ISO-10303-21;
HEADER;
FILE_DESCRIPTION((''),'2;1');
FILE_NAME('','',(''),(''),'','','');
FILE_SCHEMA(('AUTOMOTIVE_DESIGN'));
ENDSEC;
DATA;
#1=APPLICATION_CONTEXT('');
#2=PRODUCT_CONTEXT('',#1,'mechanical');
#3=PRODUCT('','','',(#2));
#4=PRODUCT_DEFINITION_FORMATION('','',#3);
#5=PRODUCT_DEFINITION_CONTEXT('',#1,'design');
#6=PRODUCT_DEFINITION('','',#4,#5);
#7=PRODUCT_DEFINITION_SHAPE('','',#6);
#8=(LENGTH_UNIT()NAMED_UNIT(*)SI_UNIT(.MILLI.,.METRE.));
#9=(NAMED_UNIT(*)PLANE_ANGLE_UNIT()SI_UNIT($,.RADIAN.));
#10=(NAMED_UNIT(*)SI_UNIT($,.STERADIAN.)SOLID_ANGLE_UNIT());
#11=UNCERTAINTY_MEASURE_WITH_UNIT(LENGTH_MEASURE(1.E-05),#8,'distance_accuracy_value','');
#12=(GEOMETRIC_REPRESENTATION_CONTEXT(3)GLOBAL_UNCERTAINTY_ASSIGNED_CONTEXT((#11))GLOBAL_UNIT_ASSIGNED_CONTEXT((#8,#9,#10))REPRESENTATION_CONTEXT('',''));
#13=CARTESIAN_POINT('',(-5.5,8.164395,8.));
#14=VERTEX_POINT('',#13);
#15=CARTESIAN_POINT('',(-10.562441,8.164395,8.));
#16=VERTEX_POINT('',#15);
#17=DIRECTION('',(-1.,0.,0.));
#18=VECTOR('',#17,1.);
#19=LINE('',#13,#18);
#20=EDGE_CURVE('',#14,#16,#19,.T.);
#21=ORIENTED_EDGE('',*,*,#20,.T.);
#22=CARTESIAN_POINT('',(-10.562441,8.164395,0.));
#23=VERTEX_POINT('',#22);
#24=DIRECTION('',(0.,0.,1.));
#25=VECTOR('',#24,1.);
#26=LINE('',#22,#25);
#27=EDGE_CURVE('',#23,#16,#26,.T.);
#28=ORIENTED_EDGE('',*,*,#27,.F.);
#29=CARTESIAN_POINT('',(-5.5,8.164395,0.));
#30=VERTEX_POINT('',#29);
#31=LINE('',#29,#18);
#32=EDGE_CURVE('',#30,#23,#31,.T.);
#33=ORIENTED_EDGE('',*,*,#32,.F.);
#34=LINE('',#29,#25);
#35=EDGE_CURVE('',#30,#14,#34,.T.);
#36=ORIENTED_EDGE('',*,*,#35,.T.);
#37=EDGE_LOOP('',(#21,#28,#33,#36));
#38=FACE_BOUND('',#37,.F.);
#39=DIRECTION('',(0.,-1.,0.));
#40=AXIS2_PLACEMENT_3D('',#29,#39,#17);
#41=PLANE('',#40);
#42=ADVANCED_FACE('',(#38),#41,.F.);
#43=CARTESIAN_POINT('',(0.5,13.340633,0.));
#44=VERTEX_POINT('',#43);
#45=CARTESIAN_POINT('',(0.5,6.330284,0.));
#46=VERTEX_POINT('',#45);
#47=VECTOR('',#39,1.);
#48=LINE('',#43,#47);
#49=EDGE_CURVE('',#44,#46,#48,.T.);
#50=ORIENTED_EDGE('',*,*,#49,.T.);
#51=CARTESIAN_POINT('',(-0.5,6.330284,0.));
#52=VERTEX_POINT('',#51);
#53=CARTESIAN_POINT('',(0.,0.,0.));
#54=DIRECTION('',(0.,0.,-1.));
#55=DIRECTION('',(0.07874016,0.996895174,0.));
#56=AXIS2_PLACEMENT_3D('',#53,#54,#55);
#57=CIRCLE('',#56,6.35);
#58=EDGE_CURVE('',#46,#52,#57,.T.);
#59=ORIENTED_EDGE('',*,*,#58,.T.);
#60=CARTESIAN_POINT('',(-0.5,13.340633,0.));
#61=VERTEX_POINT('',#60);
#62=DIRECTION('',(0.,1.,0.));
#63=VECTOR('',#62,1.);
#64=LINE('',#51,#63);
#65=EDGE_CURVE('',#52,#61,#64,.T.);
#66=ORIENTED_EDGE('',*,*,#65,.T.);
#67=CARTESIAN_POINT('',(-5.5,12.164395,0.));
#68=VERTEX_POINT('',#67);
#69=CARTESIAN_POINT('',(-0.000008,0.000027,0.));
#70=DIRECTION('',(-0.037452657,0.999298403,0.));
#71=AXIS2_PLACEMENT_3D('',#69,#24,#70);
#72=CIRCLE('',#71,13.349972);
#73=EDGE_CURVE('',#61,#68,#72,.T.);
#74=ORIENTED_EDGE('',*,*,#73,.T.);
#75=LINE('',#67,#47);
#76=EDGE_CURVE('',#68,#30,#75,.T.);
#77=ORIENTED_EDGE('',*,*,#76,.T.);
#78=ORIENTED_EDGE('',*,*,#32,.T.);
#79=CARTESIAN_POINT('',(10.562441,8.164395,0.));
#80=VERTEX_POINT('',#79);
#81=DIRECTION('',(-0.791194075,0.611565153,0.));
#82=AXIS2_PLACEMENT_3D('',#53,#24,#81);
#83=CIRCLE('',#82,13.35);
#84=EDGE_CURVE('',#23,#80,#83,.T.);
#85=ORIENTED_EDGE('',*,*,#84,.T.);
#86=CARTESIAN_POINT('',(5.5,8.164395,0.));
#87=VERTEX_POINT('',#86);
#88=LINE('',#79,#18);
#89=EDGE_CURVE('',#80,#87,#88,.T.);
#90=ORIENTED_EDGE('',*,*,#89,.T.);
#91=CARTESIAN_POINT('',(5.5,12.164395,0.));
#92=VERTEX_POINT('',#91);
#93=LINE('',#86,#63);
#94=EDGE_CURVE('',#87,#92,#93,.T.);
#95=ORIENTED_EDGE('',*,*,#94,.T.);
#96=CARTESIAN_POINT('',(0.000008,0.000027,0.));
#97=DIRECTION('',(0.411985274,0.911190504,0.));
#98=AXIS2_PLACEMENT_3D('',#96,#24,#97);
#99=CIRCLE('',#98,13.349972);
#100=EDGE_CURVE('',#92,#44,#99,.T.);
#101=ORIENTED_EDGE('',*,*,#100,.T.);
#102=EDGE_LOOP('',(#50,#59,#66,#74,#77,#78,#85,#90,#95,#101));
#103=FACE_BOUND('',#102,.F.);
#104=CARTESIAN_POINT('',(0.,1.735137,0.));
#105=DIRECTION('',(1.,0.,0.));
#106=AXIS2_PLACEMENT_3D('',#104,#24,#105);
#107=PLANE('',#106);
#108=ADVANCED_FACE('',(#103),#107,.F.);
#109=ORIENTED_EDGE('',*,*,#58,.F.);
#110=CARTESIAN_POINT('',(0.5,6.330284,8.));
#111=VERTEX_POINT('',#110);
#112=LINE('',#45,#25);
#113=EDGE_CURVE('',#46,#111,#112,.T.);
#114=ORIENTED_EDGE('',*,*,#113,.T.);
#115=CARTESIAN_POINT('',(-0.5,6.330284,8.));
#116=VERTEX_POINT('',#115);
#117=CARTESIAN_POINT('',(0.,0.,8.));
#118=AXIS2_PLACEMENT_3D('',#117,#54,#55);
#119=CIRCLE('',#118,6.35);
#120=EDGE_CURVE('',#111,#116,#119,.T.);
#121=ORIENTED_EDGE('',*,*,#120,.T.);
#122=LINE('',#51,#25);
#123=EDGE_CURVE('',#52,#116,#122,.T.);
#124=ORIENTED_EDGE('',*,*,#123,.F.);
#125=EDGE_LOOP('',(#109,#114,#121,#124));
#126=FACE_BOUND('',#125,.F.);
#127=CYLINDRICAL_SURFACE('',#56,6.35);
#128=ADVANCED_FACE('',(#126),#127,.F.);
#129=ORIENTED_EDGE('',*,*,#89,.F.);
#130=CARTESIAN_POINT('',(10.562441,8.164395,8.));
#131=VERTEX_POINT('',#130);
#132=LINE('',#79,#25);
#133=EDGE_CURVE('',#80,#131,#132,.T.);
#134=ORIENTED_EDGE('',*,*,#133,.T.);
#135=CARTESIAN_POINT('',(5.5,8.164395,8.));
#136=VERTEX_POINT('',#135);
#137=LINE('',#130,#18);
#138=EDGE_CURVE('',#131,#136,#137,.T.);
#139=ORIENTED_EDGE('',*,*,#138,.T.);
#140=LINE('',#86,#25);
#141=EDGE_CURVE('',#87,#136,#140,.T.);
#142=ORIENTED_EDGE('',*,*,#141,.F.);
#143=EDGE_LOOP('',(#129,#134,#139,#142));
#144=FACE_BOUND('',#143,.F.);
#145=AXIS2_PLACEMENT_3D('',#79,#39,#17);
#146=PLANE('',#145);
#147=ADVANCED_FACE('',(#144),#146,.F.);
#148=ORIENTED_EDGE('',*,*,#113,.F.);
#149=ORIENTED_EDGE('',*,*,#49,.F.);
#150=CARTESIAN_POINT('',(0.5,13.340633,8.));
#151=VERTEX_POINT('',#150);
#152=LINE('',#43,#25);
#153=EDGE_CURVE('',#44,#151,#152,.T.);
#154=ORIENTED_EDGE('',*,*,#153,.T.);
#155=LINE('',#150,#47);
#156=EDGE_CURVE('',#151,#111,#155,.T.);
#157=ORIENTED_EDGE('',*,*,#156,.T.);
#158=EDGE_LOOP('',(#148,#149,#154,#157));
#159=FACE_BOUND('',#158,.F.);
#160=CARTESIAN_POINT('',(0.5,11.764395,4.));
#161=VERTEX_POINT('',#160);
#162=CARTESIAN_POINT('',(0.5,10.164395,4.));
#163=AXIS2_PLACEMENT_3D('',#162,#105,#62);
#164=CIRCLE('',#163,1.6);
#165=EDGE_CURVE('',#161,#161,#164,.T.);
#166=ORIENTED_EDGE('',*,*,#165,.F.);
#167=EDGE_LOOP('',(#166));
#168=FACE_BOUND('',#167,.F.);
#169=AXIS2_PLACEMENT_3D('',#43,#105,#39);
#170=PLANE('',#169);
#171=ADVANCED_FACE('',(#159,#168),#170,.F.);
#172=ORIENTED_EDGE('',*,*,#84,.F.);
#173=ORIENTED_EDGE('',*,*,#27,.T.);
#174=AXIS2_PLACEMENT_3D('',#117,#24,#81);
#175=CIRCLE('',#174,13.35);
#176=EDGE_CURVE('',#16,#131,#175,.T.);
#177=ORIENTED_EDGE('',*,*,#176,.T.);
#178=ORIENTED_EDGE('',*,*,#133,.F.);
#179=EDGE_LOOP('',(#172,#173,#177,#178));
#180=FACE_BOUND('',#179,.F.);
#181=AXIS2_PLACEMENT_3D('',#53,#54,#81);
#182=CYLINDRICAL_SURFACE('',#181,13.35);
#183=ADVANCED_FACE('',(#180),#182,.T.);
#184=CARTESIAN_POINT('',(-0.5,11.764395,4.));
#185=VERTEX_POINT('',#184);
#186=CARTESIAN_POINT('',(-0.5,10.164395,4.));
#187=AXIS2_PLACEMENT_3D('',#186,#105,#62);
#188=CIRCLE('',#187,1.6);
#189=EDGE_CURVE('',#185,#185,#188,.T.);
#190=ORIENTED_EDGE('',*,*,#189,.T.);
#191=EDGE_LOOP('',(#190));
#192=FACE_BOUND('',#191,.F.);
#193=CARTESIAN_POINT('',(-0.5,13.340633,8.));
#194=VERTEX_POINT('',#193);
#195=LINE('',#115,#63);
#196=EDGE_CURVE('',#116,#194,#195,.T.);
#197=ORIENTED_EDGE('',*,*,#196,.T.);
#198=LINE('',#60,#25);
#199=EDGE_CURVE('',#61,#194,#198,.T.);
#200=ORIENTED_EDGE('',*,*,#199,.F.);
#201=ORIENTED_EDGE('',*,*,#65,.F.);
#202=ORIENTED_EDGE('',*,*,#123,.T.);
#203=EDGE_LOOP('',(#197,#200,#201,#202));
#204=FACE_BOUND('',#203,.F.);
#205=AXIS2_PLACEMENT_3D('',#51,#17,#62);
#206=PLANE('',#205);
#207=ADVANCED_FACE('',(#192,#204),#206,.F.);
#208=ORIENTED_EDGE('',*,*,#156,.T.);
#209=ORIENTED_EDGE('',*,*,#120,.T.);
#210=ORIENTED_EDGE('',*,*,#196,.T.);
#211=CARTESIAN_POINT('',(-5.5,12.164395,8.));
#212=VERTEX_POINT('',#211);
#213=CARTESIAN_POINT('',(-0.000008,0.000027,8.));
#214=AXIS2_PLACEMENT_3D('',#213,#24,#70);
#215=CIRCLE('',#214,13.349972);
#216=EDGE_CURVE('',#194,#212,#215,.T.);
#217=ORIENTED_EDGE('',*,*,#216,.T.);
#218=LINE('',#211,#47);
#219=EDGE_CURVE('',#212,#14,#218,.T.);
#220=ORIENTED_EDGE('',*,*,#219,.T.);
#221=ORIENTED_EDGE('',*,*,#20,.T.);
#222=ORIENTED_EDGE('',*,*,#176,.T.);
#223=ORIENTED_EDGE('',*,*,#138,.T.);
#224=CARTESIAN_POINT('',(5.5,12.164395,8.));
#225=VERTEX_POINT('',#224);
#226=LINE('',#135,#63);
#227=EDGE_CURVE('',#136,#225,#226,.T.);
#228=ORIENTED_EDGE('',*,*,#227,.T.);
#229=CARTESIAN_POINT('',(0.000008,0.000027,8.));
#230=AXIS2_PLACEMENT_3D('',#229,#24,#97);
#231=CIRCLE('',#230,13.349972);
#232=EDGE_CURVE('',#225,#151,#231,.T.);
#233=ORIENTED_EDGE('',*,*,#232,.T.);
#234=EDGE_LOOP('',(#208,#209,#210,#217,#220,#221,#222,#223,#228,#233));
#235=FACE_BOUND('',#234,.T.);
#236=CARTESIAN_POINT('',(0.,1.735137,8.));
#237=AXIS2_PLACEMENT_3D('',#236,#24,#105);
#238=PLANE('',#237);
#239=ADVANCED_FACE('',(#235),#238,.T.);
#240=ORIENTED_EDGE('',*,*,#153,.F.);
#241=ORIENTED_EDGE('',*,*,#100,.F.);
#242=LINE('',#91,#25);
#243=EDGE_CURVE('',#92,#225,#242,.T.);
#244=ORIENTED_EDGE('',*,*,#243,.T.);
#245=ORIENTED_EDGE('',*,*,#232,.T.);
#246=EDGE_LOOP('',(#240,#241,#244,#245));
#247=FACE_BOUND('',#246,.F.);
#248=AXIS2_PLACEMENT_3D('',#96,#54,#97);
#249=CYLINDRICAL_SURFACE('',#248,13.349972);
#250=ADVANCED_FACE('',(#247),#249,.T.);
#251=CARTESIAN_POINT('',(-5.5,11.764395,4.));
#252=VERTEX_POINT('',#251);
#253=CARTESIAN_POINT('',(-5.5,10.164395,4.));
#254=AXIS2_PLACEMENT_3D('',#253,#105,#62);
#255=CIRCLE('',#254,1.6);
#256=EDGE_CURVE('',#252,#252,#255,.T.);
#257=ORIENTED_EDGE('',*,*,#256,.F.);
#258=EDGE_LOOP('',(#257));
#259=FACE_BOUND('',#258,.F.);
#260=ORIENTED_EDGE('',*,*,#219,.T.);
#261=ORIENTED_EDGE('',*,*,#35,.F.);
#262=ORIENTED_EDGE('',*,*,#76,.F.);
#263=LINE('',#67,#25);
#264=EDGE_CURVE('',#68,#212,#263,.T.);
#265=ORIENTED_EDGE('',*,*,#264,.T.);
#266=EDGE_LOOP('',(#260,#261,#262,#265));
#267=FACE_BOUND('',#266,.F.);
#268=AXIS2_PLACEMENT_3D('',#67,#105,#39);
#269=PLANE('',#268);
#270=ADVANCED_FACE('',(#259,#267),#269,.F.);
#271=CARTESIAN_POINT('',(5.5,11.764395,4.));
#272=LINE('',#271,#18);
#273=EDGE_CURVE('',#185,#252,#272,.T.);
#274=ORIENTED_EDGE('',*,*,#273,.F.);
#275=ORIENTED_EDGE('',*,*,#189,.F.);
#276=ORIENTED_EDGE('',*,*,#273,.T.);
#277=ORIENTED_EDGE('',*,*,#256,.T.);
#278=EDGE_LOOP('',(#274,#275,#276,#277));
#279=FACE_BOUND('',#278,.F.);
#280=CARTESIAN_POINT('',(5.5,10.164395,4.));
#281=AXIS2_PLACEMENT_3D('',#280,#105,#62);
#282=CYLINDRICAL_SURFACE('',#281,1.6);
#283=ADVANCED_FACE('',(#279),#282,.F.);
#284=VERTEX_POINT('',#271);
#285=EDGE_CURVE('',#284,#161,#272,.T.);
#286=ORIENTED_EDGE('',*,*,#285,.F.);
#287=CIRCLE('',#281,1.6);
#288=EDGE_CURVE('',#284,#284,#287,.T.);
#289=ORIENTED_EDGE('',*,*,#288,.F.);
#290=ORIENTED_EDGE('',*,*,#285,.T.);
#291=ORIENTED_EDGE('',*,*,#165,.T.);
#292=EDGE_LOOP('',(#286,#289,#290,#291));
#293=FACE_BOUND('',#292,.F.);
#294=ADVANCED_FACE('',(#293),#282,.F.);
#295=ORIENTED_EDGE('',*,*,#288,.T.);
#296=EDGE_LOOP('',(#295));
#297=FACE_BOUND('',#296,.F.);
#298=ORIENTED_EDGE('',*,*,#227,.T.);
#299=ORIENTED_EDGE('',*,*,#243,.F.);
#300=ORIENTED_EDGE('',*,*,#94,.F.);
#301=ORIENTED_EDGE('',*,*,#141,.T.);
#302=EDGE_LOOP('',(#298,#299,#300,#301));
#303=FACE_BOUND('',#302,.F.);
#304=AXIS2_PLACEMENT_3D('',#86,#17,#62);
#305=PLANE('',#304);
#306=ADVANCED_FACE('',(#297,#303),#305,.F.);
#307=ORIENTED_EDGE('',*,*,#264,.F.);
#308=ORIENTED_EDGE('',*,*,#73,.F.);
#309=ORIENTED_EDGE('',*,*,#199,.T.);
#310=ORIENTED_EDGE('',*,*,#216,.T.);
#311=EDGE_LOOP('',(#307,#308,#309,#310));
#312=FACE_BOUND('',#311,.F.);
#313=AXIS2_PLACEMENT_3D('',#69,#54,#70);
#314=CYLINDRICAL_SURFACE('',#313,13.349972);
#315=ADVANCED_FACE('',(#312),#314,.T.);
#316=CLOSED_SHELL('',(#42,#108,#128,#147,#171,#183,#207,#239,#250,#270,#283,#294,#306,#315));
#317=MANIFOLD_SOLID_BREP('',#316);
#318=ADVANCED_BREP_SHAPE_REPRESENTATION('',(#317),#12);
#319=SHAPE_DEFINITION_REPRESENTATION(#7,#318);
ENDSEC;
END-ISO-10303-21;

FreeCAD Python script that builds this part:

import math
import FreeCAD as App
import Part
import Sketcher
from FreeCAD import Vector

doc = App.newDocument("Part")
body = doc.addObject("PartDesign::Body", "Body")

# Sketch on XY plane
sketch1 = body.newObject("Sketcher::SketchObject", "Sketch")
sketch1.AttachmentSupport = (doc.getObject("XY_Plane"), [""])
sketch1.MapMode = "FlatFace"
sketch1.addGeometry(Part.ArcOfCircle(Part.Circle(Vector(0, 0, 0), Vector(0, 0, 1), 6.3), math.radians(95), math.radians(445)), False)
sketch1.addGeometry(Part.LineSegment(Vector(-0.5, 6.3, 0), Vector(-0.5, 13.3, 0)), False)
sketch1.addGeometry(Part.ArcOfCircle(Part.Circle(Vector(0, 0, 0), Vector(0, 0, 1), 13.3), math.radians(92), math.radians(114)), False)
sketch1.addGeometry(Part.LineSegment(Vector(-5.5, 12.2, 0), Vector(-5.5, 8.2, 0)), False)
sketch1.addGeometry(Part.LineSegment(Vector(-5.5, 8.2, 0), Vector(-10.6, 8.2, 0)), False)
sketch1.addGeometry(Part.ArcOfCircle(Part.Circle(Vector(0, 0, 0), Vector(0, 0, 1), 13.4), math.radians(142), math.radians(398)), False)
sketch1.addGeometry(Part.LineSegment(Vector(10.6, 8.2, 0), Vector(5.5, 8.2, 0)), False)
sketch1.addGeometry(Part.LineSegment(Vector(5.5, 8.2, 0), Vector(5.5, 12.2, 0)), False)
sketch1.addGeometry(Part.ArcOfCircle(Part.Circle(Vector(0, 0, 0), Vector(0, 0, 1), 13.3), math.radians(66), math.radians(88)), False)
sketch1.addGeometry(Part.LineSegment(Vector(0.5, 13.3, 0), Vector(0.5, 6.3, 0)), False)
sketch1.addConstraint(Sketcher.Constraint("Coincident", 0, 1, 1, 1))
sketch1.addConstraint(Sketcher.Constraint("Coincident", 1, 2, 2, 1))
sketch1.addConstraint(Sketcher.Constraint("Coincident", 2, 2, 3, 1))
sketch1.addConstraint(Sketcher.Constraint("Coincident", 3, 2, 4, 1))
sketch1.addConstraint(Sketcher.Constraint("Coincident", 4, 2, 5, 1))
sketch1.addConstraint(Sketcher.Constraint("Coincident", 5, 2, 6, 1))
sketch1.addConstraint(Sketcher.Constraint("Coincident", 6, 2, 7, 1))
sketch1.addConstraint(Sketcher.Constraint("Coincident", 7, 2, 8, 1))
sketch1.addConstraint(Sketcher.Constraint("Coincident", 8, 2, 9, 1))
sketch1.addConstraint(Sketcher.Constraint("Coincident", 9, 2, 0, 2))
sketch1.addConstraint(Sketcher.Constraint("Vertical", 1))
sketch1.addConstraint(Sketcher.Constraint("Vertical", 3))
sketch1.addConstraint(Sketcher.Constraint("Horizontal", 4))
sketch1.addConstraint(Sketcher.Constraint("Horizontal", 6))
sketch1.addConstraint(Sketcher.Constraint("Vertical", 7))
sketch1.addConstraint(Sketcher.Constraint("Vertical", 9))
sketch1.addConstraint(Sketcher.Constraint("Coincident", 0, 3, -1, 1))
sketch1.addConstraint(Sketcher.Constraint("Coincident", 5, 3, -1, 1))
sketch1.addConstraint(Sketcher.Constraint("Equal", 2, 8))
sketch1.addConstraint(Sketcher.Constraint("Symmetric", 2, 3, 8, 3, -2))
sketch1.addConstraint(Sketcher.Constraint("Symmetric", 3, 2, 6, 2, -2))
sketch1.addConstraint(Sketcher.Constraint("Horizontal", 1, 2, 8, 2))
sketch1.addConstraint(Sketcher.Constraint("DistanceY", 3, 2, 3, 1, 4.0))
sketch1.addConstraint(Sketcher.Constraint("Radius", 0, 6.35))
sketch1.addConstraint(Sketcher.Constraint("Radius", 5, 13.35))
sketch1.addConstraint(Sketcher.Constraint("DistanceX", 2, 2, 1, 2, 5.0))
sketch1.addConstraint(Sketcher.Constraint("DistanceX", 0, 1, 6, 2, 6.0))
sketch1.addConstraint(Sketcher.Constraint("Radius", 2, 13.349972))
sketch1.addConstraint(Sketcher.Constraint("DistanceX", 4, 2, 4, 1, 5.062441))
sketch1.addConstraint(Sketcher.Constraint("DistanceY", 1, 1, 1, 2, 7.010349))
pad1 = body.newObject("PartDesign::Pad", "Pad")
pad1.Profile = sketch1
pad1.Length = 8

# Sketch on YZ plane
sketch2 = body.newObject("Sketcher::SketchObject", "Sketch001")
sketch2.AttachmentSupport = (doc.getObject("YZ_Plane"), [""])
sketch2.MapMode = "FlatFace"
sketch2.AttachmentOffset = App.Placement(Vector(0, 0, 5.5), App.Rotation())
sketch2.addGeometry(Part.Circle(Vector(10.2, 4, 0), Vector(0, 0, 1), 1.6), False)
sketch2.addConstraint(Sketcher.Constraint("Diameter", 0, 3.2))
sketch2.addConstraint(Sketcher.Constraint("DistanceY", -1, 1, 0, 3, 4.0))
sketch2.addConstraint(Sketcher.Constraint("DistanceX", -1, 1, 0, 3, 10.164395))
pocket1 = body.newObject("PartDesign::Pocket", "Pocket")
pocket1.Profile = sketch2
pocket1.Length = 25.4

doc.recompute()
